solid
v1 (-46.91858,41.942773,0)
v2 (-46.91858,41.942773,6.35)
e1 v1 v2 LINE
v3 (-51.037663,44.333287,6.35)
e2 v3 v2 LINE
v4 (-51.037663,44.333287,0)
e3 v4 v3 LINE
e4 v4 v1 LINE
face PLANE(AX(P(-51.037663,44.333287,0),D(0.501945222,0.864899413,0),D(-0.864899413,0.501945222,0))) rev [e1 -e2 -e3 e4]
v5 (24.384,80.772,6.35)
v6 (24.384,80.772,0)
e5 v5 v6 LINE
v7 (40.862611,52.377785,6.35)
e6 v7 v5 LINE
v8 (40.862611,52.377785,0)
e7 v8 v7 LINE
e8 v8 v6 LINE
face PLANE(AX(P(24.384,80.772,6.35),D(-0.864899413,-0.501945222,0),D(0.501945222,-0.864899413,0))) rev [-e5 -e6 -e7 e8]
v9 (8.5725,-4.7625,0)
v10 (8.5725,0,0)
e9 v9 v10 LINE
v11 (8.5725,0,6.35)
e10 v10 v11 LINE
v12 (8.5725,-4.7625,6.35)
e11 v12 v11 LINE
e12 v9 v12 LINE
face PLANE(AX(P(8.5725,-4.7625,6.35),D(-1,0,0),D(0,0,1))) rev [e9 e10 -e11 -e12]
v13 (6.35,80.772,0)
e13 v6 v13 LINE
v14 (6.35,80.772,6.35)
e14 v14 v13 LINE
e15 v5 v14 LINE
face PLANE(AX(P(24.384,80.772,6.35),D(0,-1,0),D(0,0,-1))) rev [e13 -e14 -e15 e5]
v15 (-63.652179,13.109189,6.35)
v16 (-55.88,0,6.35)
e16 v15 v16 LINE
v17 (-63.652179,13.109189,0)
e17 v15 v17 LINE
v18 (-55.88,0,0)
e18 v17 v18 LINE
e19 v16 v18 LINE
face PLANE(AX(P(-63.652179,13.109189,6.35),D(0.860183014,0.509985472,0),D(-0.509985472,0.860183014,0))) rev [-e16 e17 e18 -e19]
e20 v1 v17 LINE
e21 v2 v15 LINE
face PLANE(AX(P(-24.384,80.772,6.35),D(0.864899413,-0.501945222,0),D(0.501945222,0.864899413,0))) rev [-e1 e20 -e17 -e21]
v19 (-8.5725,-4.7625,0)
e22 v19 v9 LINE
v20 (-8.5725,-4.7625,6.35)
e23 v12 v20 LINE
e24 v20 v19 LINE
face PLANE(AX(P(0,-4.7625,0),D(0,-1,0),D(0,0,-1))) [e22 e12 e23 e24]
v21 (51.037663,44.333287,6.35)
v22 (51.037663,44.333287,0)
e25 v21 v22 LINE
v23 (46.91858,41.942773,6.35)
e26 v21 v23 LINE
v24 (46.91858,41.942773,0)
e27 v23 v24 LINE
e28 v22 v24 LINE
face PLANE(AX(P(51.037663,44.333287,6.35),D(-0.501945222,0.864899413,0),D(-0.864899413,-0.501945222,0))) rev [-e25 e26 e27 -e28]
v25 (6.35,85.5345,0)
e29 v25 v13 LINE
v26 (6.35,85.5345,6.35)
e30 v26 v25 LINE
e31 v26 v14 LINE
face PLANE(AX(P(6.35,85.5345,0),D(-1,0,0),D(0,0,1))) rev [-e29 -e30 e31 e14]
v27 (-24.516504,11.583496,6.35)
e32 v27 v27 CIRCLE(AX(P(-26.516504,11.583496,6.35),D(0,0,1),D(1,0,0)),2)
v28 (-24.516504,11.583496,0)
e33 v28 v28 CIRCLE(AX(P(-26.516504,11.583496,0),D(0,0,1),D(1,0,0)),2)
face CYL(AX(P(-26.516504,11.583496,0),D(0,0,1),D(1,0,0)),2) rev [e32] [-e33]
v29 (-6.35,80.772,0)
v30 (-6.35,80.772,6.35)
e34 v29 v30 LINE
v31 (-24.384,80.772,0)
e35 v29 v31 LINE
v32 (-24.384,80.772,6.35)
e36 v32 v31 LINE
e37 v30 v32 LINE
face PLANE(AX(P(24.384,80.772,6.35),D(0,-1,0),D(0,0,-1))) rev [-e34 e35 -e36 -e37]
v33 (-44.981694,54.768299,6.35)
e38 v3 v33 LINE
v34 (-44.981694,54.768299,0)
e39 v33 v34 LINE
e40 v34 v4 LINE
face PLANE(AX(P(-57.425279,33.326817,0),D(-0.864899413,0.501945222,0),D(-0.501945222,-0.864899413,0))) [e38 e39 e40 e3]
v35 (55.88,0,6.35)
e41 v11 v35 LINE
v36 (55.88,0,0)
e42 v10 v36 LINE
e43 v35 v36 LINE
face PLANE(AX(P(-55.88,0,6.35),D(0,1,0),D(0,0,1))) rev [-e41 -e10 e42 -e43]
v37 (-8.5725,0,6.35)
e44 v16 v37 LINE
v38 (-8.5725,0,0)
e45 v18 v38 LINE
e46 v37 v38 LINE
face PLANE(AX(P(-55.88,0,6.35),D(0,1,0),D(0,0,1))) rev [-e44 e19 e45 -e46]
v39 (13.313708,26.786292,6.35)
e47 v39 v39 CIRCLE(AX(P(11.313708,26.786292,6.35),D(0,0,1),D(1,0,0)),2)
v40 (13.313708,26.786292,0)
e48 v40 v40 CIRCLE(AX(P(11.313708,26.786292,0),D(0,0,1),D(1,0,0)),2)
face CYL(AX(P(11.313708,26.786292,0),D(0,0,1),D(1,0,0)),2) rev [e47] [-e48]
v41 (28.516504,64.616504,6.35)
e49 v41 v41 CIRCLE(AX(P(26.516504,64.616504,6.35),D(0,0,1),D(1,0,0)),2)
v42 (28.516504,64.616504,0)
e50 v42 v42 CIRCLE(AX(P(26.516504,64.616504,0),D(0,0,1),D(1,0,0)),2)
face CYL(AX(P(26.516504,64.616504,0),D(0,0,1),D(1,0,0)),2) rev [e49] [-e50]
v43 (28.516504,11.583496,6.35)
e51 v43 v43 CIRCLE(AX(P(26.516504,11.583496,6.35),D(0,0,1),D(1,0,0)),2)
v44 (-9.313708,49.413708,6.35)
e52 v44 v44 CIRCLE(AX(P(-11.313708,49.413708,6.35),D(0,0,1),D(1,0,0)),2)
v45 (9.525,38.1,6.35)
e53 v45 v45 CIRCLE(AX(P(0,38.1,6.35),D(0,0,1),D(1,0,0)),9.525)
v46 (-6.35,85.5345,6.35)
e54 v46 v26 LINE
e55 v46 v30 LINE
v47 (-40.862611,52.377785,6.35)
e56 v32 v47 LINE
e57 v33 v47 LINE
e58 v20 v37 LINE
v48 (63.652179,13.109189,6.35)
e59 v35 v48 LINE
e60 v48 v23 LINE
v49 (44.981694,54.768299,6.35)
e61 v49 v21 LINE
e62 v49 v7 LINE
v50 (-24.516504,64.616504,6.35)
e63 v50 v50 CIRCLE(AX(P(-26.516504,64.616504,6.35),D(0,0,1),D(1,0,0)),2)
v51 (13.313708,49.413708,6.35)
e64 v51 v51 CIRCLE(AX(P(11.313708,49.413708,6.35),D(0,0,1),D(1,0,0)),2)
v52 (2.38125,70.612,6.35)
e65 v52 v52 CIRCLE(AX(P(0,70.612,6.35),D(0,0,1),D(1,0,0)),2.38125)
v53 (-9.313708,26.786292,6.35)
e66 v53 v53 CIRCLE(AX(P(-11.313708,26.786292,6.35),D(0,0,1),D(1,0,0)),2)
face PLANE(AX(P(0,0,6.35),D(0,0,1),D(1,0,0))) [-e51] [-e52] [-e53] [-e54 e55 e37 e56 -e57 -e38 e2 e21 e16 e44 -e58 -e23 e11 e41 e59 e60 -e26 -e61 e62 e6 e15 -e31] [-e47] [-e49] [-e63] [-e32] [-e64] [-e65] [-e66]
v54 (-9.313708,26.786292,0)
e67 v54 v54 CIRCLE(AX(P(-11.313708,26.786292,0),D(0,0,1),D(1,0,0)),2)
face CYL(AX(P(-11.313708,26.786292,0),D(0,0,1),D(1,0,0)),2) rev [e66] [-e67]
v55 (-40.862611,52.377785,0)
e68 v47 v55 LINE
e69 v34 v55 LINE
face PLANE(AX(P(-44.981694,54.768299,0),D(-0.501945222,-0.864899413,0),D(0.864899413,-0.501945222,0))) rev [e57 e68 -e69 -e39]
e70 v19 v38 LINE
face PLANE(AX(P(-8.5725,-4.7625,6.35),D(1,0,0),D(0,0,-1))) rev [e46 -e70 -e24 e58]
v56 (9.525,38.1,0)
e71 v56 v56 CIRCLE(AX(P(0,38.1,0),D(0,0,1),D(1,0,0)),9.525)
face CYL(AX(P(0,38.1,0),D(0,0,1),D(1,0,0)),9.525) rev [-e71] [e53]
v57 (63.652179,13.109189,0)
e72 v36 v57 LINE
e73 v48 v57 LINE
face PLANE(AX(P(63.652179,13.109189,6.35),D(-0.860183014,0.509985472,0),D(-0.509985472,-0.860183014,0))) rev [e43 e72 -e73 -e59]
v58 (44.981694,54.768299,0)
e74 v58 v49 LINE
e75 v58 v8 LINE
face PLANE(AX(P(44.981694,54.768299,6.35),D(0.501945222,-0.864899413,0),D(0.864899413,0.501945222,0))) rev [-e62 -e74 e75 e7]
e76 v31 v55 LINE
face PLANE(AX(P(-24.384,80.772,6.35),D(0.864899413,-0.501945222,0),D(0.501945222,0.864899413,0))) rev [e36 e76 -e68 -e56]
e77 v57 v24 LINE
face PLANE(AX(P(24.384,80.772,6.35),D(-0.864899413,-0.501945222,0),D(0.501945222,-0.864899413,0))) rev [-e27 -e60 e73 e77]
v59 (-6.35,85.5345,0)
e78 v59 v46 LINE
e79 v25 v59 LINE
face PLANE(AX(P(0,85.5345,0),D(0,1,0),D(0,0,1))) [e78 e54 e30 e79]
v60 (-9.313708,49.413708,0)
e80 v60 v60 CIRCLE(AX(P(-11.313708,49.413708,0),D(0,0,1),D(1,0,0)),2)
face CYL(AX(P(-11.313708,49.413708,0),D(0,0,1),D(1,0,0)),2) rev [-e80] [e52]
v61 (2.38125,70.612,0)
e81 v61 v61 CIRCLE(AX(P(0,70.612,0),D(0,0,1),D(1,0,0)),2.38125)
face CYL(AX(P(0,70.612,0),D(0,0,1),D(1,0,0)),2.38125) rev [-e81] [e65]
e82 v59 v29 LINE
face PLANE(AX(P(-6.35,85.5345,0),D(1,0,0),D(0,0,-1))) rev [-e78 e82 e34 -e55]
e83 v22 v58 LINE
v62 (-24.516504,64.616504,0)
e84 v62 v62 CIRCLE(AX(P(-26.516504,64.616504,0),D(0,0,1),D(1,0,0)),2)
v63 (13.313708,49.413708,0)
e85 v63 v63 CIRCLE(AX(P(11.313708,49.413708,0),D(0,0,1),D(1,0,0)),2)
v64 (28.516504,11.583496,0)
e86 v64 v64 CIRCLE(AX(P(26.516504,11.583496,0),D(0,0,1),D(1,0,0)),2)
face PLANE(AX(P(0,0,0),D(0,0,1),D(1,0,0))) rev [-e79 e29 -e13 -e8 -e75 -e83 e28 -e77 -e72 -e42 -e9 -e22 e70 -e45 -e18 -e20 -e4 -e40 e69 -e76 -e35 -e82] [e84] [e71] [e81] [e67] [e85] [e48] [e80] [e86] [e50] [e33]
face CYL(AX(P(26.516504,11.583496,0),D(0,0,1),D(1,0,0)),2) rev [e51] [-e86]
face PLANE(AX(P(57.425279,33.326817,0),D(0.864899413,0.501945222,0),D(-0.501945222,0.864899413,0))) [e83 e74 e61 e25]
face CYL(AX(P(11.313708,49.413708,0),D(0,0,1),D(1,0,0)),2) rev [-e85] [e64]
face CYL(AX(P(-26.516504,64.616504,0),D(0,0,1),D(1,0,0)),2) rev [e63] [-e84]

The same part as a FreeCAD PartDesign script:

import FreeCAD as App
import Part
import Sketcher
Q = App.Units.Quantity


def add_polygon(sketch, points):
    """Adds a closed chain of lines whose ends are joined by coincident constraints."""
    first, n = sketch.GeometryCount, len(points)
    for a, b in zip(points, points[1:] + points[:1]):
        sketch.addGeometry(Part.LineSegment(App.Vector(*a, 0), App.Vector(*b, 0)), False)
    for i in range(n):
        sketch.addConstraint(Sketcher.Constraint("Coincident", first + i, 2, first + (i + 1) % n, 1))

doc = App.newDocument("Part")
body = doc.addObject("PartDesign::Body", "Body")

# Sketch on XY plane
sketch1 = body.newObject("Sketcher::SketchObject", "Sketch")
sketch1.AttachmentSupport = (doc.getObject("XY_Plane"), [""])
sketch1.MapMode = "FlatFace"
add_polygon(sketch1, [(24, 81), (-24, 81), (-64, 13), (-56, 0), (56, 0), (64, 13)])  # lines 0-5
sketch1.addConstraint(Sketcher.Constraint("Horizontal", 0))
sketch1.addConstraint(Sketcher.Constraint("Horizontal", 3))
sketch1.addConstraint(Sketcher.Constraint("Symmetric", 2, 2, 3, 2, -1, 1))
sketch1.addConstraint(Sketcher.Constraint("Symmetric", 1, 2, 4, 2, -2))
sketch1.addConstraint(Sketcher.Constraint("Equal", 1, 5))
sketch1.addConstraint(Sketcher.Constraint("DistanceX", 3, 1, 3, 2, Q("4.4 in")))
sketch1.addConstraint(Sketcher.Constraint("Distance", 2, Q("0.6 in")))
sketch1.addConstraint(Sketcher.Constraint("DistanceX", 0, 2, 0, 1, Q("1.92 in")))
sketch1.addConstraint(Sketcher.Constraint("Distance", 1, Q("3.08 in")))
sketch1.addConstraint(Sketcher.Constraint("DistanceY", -1, 1, 0, 2, Q("3.18 in")))
pad1 = body.newObject("PartDesign::Pad", "Pad")
pad1.Profile = sketch1
pad1.Length = Q("0.25 in")

# Sketch on XY plane
sketch2 = body.newObject("Sketcher::SketchObject", "Sketch001")
sketch2.AttachmentSupport = (doc.getObject("XY_Plane"), [""])
sketch2.MapMode = "FlatFace"
sketch2.AttachmentOffset = App.Placement(App.Vector(0, 0, 0.25 * 25.4), App.Rotation())
sketch2.addGeometry(Part.Circle(App.Vector(0, 38.1, 0), App.Vector(0, 0, 1), 9.5), False)
sketch2.addGeometry(Part.Circle(App.Vector(-11.3, 49.4, 0), App.Vector(0, 0, 1), 2), False)
sketch2.addGeometry(Part.Circle(App.Vector(-11.3, 26.8, 0), App.Vector(0, 0, 1), 2), False)
sketch2.addGeometry(Part.Circle(App.Vector(11.3, 26.8, 0), App.Vector(0, 0, 1), 2), False)
sketch2.addGeometry(Part.Circle(App.Vector(11.3, 49.4, 0), App.Vector(0, 0, 1), 2), False)
sketch2.addGeometry(Part.Circle(App.Vector(26.5, 64.6, 0), App.Vector(0, 0, 1), 2), False)
sketch2.addGeometry(Part.Circle(App.Vector(-26.5, 64.6, 0), App.Vector(0, 0, 1), 2), False)
sketch2.addGeometry(Part.Circle(App.Vector(-26.5, 11.6, 0), App.Vector(0, 0, 1), 2), False)
sketch2.addGeometry(Part.Circle(App.Vector(26.5, 11.6, 0), App.Vector(0, 0, 1), 2), False)
sketch2.addGeometry(Part.Circle(App.Vector(0, 70.6, 0), App.Vector(0, 0, 1), 2.4), False)
sketch2.addConstraint(Sketcher.Constraint("Equal", 1, 2))
sketch2.addConstraint(Sketcher.Constraint("Equal", 2, 3))
sketch2.addConstraint(Sketcher.Constraint("Equal", 3, 4))
sketch2.addConstraint(Sketcher.Constraint("Equal", 4, 5))
sketch2.addConstraint(Sketcher.Constraint("Equal", 5, 6))
sketch2.addConstraint(Sketcher.Constraint("Equal", 6, 7))
sketch2.addConstraint(Sketcher.Constraint("Equal", 7, 8))
sketch2.addConstraint(Sketcher.Constraint("Symmetric", 2, 3, 3, 3, -2))
sketch2.addConstraint(Sketcher.Constraint("Symmetric", 1, 3, 4, 3, -2))
sketch2.addConstraint(Sketcher.Constraint("Symmetric", 5, 3, 6, 3, -2))
sketch2.addConstraint(Sketcher.Constraint("Symmetric", 7, 3, 8, 3, -2))
sketch2.addConstraint(Sketcher.Constraint("PointOnObject", 0, 3, -2))
sketch2.addConstraint(Sketcher.Constraint("PointOnObject", 9, 3, -2))
sketch2.addConstraint(Sketcher.Constraint("Vertical", 1, 3, 2, 3))
sketch2.addConstraint(Sketcher.Constraint("Vertical", 6, 3, 7, 3))
sketch2.addConstraint(Sketcher.Constraint("Diameter", 0, Q("0.75 in")))
sketch2.addConstraint(Sketcher.Constraint("Diameter", 9, Q("0.1875 in")))
sketch2.addConstraint(Sketcher.Constraint("DistanceY", -1, 1, 0, 3, Q("1.5 in")))
sketch2.addConstraint(Sketcher.Constraint("Diameter", 1, 4.0))
sketch2.addConstraint(Sketcher.Constraint("DistanceY", -1, 1, 9, 3, Q("2.78 in")))
sketch2.addConstraint(Sketcher.Constraint("DistanceX", 1, 3, -1, 1, 11.313708))
sketch2.addConstraint(Sketcher.Constraint("DistanceY", -1, 1, 1, 3, 49.413708))
sketch2.addConstraint(Sketcher.Constraint("DistanceY", -1, 1, 2, 3, 26.786292))
sketch2.addConstraint(Sketcher.Constraint("DistanceX", 6, 3, 5, 3, 53.033009))
sketch2.addConstraint(Sketcher.Constraint("DistanceY", 7, 3, 6, 3, 53.033009))
sketch2.addConstraint(Sketcher.Constraint("DistanceY", -1, 1, 5, 3, 64.616504))
pocket1 = body.newObject("PartDesign::Pocket", "Pocket")
pocket1.Profile = sketch2
pocket1.Length = Q("0.25 in")

# Sketch on XZ plane
sketch3 = body.newObject("Sketcher::SketchObject", "Sketch002")
sketch3.AttachmentSupport = (doc.getObject("XZ_Plane"), [""])
sketch3.MapMode = "FlatFace"
add_polygon(sketch3, [(-9, 6), (-9, 0), (9, 0), (9, 6)])  # lines 0-3
sketch3.addConstraint(Sketcher.Constraint("Vertical", 0))
sketch3.addConstraint(Sketcher.Constraint("Horizontal", 1))
sketch3.addConstraint(Sketcher.Constraint("Vertical", 2))
sketch3.addConstraint(Sketcher.Constraint("Horizontal", 3))
sketch3.addConstraint(Sketcher.Constraint("Symmetric", 0, 2, 1, 2, -1, 1))
sketch3.addConstraint(Sketcher.Constraint("DistanceY", 0, 2, 0, 1, Q("0.25 in")))
sketch3.addConstraint(Sketcher.Constraint("DistanceX", 1, 1, 1, 2, Q("0.675 in")))
pad2 = body.newObject("PartDesign::Pad", "Pad001")
pad2.Profile = sketch3
pad2.Length = Q("0.1875 in")

# Sketch on an angled plane
sketch4 = body.newObject("Sketcher::SketchObject", "Sketch003")
sketch4.Placement = App.Placement(App.Vector(-53.306196, 30.936303, 0), App.Rotation(App.Vector(0, 0, 1), App.Vector(0.501945222, 0.864899413, 0), App.Vector(-0.864899413, 0.501945222, 0), "ZXY"))
add_polygon(sketch4, [(0, 25), (0, 13), (6, 13), (6, 25)])  # lines 0-3
sketch4.addConstraint(Sketcher.Constraint("Vertical", 0))
sketch4.addConstraint(Sketcher.Constraint("Horizontal", 1))
sketch4.addConstraint(Sketcher.Constraint("Vertical", 2))
sketch4.addConstraint(Sketcher.Constraint("Horizontal", 3))
sketch4.addConstraint(Sketcher.Constraint("PointOnObject", 0, 2, -2))
sketch4.addConstraint(Sketcher.Constraint("DistanceX", 1, 1, 1, 2, Q("0.25 in")))
sketch4.addConstraint(Sketcher.Constraint("DistanceY", 0, 2, 0, 1, Q("0.475 in")))
sketch4.addConstraint(Sketcher.Constraint("DistanceY", -1, 1, 0, 2, 12.725723))
pad3 = body.newObject("PartDesign::Pad", "Pad002")
pad3.Profile = sketch4
pad3.Length = Q("0.1875 in")

# Sketch on an angled plane
sketch5 = body.newObject("Sketcher::SketchObject", "Sketch004")
sketch5.Placement = App.Placement(App.Vector(53.306196, 30.936303, 0), App.Rotation(App.Vector(0, 0, -1), App.Vector(-0.501945222, 0.864899413, 0), App.Vector(0.864899413, 0.501945222, 0), "ZXY"))
add_polygon(sketch5, [(-6, 25), (-6, 13), (0, 13), (0, 25)])  # lines 0-3
sketch5.addConstraint(Sketcher.Constraint("Vertical", 0))
sketch5.addConstraint(Sketcher.Constraint("Horizontal", 1))
sketch5.addConstraint(Sketcher.Constraint("Vertical", 2))
sketch5.addConstraint(Sketcher.Constraint("Horizontal", 3))
sketch5.addConstraint(Sketcher.Constraint("PointOnObject", 1, 2, -2))
sketch5.addConstraint(Sketcher.Constraint("DistanceX", 1, 1, 1, 2, Q("0.25 in")))
sketch5.addConstraint(Sketcher.Constraint("DistanceY", 0, 2, 0, 1, Q("0.475 in")))
sketch5.addConstraint(Sketcher.Constraint("DistanceY", -1, 1, 0, 2, 12.725723))
pad4 = body.newObject("PartDesign::Pad", "Pad003")
pad4.Profile = sketch5
pad4.Length = Q("0.1875 in")

# Sketch on XZ plane
sketch6 = body.newObject("Sketcher::SketchObject", "Sketch005")
sketch6.AttachmentSupport = (doc.getObject("XZ_Plane"), [""])
sketch6.MapMode = "FlatFace"
sketch6.AttachmentOffset = App.Placement(App.Vector(0, 0, -3.18 * 25.4), App.Rotation())
add_polygon(sketch6, [(-6, 0), (-6, 6), (6, 6), (6, 0)])  # lines 0-3
sketch6.addConstraint(Sketcher.Constraint("Vertical", 0))
sketch6.addConstraint(Sketcher.Constraint("Horizontal", 1))
sketch6.addConstraint(Sketcher.Constraint("Vertical", 2))
sketch6.addConstraint(Sketcher.Constraint("Horizontal", 3))
sketch6.addConstraint(Sketcher.Constraint("Symmetric", 2, 2, 3, 2, -1, 1))
sketch6.addConstraint(Sketcher.Constraint("DistanceX", 1, 1, 1, 2, Q("0.5 in")))
sketch6.addConstraint(Sketcher.Constraint("DistanceY", 0, 1, 0, 2, Q("0.25 in")))
pad5 = body.newObject("PartDesign::Pad", "Pad004")
pad5.Profile = sketch6
pad5.Length = Q("0.1875 in")
pad5.Reversed = True

doc.recompute()
